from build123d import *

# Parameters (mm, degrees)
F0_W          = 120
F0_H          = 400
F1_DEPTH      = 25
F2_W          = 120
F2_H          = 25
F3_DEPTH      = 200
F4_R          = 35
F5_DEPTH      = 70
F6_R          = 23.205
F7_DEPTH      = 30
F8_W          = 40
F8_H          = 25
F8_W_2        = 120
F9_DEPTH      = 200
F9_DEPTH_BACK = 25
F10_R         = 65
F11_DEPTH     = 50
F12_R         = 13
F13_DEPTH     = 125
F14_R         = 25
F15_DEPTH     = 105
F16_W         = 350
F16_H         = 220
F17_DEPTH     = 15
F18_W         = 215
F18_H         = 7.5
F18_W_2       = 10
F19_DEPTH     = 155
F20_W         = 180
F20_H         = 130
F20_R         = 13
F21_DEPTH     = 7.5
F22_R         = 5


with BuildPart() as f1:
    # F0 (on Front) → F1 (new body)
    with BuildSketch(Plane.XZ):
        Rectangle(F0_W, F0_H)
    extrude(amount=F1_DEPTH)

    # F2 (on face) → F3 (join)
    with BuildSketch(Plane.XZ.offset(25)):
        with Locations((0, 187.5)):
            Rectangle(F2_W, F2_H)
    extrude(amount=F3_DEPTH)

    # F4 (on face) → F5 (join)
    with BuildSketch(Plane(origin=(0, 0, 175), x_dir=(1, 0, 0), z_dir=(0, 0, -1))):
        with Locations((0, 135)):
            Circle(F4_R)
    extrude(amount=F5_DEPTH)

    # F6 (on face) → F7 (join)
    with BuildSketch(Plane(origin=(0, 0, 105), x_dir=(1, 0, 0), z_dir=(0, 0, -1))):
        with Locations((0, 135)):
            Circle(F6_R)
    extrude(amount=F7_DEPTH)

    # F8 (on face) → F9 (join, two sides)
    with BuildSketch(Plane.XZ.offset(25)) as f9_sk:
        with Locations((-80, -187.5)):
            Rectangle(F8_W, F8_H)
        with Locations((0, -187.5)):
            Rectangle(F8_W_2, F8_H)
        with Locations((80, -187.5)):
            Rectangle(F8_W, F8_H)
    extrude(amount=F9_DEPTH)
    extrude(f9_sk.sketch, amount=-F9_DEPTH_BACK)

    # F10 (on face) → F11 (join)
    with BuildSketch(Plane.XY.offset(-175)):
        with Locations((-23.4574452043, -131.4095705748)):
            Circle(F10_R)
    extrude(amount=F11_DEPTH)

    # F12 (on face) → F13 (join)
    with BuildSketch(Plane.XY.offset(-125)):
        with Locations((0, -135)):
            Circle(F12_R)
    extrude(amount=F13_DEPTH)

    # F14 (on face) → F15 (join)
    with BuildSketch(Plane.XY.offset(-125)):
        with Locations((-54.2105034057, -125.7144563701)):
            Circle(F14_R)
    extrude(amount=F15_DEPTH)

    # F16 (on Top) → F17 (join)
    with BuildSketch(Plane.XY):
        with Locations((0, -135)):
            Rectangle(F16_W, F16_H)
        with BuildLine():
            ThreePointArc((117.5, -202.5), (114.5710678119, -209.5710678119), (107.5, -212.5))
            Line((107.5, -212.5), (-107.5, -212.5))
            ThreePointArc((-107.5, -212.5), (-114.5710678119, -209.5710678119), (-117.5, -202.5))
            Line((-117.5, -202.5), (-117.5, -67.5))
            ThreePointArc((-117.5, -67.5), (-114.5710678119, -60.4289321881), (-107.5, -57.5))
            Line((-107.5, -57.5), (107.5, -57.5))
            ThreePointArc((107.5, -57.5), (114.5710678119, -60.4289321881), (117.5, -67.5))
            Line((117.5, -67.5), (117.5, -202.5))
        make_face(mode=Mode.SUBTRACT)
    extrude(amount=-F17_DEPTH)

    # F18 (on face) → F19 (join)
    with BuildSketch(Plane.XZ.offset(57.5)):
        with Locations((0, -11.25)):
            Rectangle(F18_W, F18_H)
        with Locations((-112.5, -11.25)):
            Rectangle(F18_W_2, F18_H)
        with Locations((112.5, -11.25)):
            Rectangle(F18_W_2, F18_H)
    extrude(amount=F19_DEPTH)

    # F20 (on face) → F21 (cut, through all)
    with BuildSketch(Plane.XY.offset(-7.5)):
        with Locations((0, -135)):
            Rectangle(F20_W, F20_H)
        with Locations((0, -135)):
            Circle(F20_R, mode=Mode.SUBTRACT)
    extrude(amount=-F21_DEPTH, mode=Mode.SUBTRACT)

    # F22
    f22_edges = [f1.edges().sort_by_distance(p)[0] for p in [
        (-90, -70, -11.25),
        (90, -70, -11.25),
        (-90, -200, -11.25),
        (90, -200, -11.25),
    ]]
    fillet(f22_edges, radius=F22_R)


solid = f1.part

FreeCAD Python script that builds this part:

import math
import FreeCAD as App
import Part
import Sketcher
from FreeCAD import Vector
Q = App.Units.Quantity


def edges_at(feature, points):
    """Names of the edges that pass closest to the given points."""
    edges = feature.Shape.Edges
    near = lambda p: min(range(len(edges)), key=lambda i: edges[i].distToShape(Part.Vertex(*p))[0])
    return sorted({f"Edge{near(p) + 1}" for p in points})

doc = App.newDocument("Part")
params = doc.addObject("Spreadsheet::Sheet", "Params")
for row, (alias, value) in enumerate([
    ("sketch1_width", "120 mm"),
    ("sketch1_height", "400 mm"),
    ("pad1_length", "25 mm"),
    ("sketch2_width", "120 mm"),
    ("sketch2_height", "25 mm"),
    ("pad2_length", "200 mm"),
    ("sketch3_diameter", "70 mm"),
    ("pad3_length", "70 mm"),
    ("sketch4_diameter", "46.41 mm"),
    ("pad4_length", "30 mm"),
    ("sketch5_width", "200 mm"),
    ("sketch5_height", "25 mm"),
    ("pad5_length", "200 mm"),
    ("pad5_length2", "25 mm"),
    ("sketch6_diameter", "130 mm"),
    ("pad6_length", "50 mm"),
    ("sketch7_diameter", "26 mm"),
    ("pad7_length", "125 mm"),
    ("sketch8_diameter", "50 mm"),
    ("pad8_length", "105 mm"),
    ("sketch9_radius", "10 mm"),
    ("sketch9_width", "350 mm"),
    ("sketch9_width2", "215 mm"),
    ("sketch9_height", "220 mm"),
    ("sketch9_height2", "135 mm"),
    ("pad9_length", "15 mm"),
    ("sketch10_width", "235 mm"),
    ("sketch10_height", "7.5 mm"),
    ("pad10_length", "155 mm"),
    ("sketch11_diameter", "26 mm"),
    ("sketch11_width", "180 mm"),
    ("sketch11_height", "130 mm"),
    ("pocket1_length", "7.5 mm"),
    ("fillet_radius", "5 mm"),
], start=1):
    params.set(f"A{row}", alias)
    params.set(f"B{row}", "=" + value)
    params.setAlias(f"B{row}", alias)

body = doc.addObject("PartDesign::Body", "Body")

sketch1 = doc.addObject("Sketcher::SketchObject", "Sketch")
body.addObject(sketch1)
sketch1.AttachmentSupport = (doc.XZ_Plane, [""])
sketch1.MapMode = "FlatFace"
sketch1.addGeometry(Part.LineSegment(Vector(-60, 200, 0), Vector(-60, -200, 0)), False)
sketch1.addGeometry(Part.LineSegment(Vector(-60, -200, 0), Vector(60, -200, 0)), False)
sketch1.addGeometry(Part.LineSegment(Vector(60, -200, 0), Vector(60, 200, 0)), False)
sketch1.addGeometry(Part.LineSegment(Vector(60, 200, 0), Vector(-60, 200, 0)), False)
sketch1.addConstraint(Sketcher.Constraint("Coincident", 0, 2, 1, 1))
sketch1.addConstraint(Sketcher.Constraint("Coincident", 1, 2, 2, 1))
sketch1.addConstraint(Sketcher.Constraint("Coincident", 2, 2, 3, 1))
sketch1.addConstraint(Sketcher.Constraint("Coincident", 3, 2, 0, 1))
sketch1.addConstraint(Sketcher.Constraint("Vertical", 0))
sketch1.addConstraint(Sketcher.Constraint("Horizontal", 1))
sketch1.addConstraint(Sketcher.Constraint("Vertical", 2))
sketch1.addConstraint(Sketcher.Constraint("Horizontal", 3))
sketch1.addConstraint(Sketcher.Constraint("Symmetric", 0, 2, 2, 2, -1, 1))
sketch1.addConstraint(Sketcher.Constraint("DistanceX", 1, 1, 1, 2, Q("120 mm")))
sketch1.addConstraint(Sketcher.Constraint("DistanceY", 0, 2, 0, 1, Q("400 mm")))
sketch1.setExpression("Constraints[9]", "Params.sketch1_width")
sketch1.setExpression("Constraints[10]", "Params.sketch1_height")
pad1 = doc.addObject("PartDesign::Pad", "Pad")
body.addObject(pad1)
pad1.Profile = sketch1
pad1.setExpression("Length", "Params.pad1_length")

sketch2 = doc.addObject("Sketcher::SketchObject", "Sketch001")
body.addObject(sketch2)
sketch2.AttachmentSupport = (doc.XZ_Plane, [""])
sketch2.MapMode = "FlatFace"
sketch2.AttachmentOffset = App.Placement(Vector(0, 0, 25), App.Rotation())
sketch2.addGeometry(Part.LineSegment(Vector(-60, 200, 0), Vector(-60, 175, 0)), False)
sketch2.addGeometry(Part.LineSegment(Vector(-60, 175, 0), Vector(60, 175, 0)), False)
sketch2.addGeometry(Part.LineSegment(Vector(60, 175, 0), Vector(60, 200, 0)), False)
sketch2.addGeometry(Part.LineSegment(Vector(60, 200, 0), Vector(-60, 200, 0)), False)
sketch2.addConstraint(Sketcher.Constraint("Coincident", 0, 2, 1, 1))
sketch2.addConstraint(Sketcher.Constraint("Coincident", 1, 2, 2, 1))
sketch2.addConstraint(Sketcher.Constraint("Coincident", 2, 2, 3, 1))
sketch2.addConstraint(Sketcher.Constraint("Coincident", 3, 2, 0, 1))
sketch2.addConstraint(Sketcher.Constraint("Vertical", 0))
sketch2.addConstraint(Sketcher.Constraint("Horizontal", 1))
sketch2.addConstraint(Sketcher.Constraint("Vertical", 2))
sketch2.addConstraint(Sketcher.Constraint("Horizontal", 3))
sketch2.addConstraint(Sketcher.Constraint("DistanceX", 1, 1, 1, 2, Q("120 mm")))
sketch2.addConstraint(Sketcher.Constraint("DistanceY", 0, 2, 0, 1, Q("25 mm")))
sketch2.addConstraint(Sketcher.Constraint("DistanceX", 0, 2, -1, 1, Q("60 mm")))
sketch2.addConstraint(Sketcher.Constraint("DistanceY", -1, 1, 0, 2, Q("175 mm")))
sketch2.setExpression("Constraints[8]", "Params.sketch2_width")
sketch2.setExpression("Constraints[9]", "Params.sketch2_height")
pad2 = doc.addObject("PartDesign::Pad", "Pad001")
body.addObject(pad2)
pad2.Profile = sketch2
pad2.setExpression("Length", "Params.pad2_length")

sketch3 = doc.addObject("Sketcher::SketchObject", "Sketch002")
body.addObject(sketch3)
sketch3.AttachmentSupport = (doc.XY_Plane, [""])
sketch3.MapMode = "FlatFace"
sketch3.AttachmentOffset = App.Placement(Vector(0, 0, 175), App.Rotation())
sketch3.addGeometry(Part.Circle(Vector(0, -135, 0), Vector(0, 0, 1), 35), False)
sketch3.addConstraint(Sketcher.Constraint("PointOnObject", 0, 3, -2))
sketch3.addConstraint(Sketcher.Constraint("Diameter", 0, Q("70 mm")))
sketch3.addConstraint(Sketcher.Constraint("DistanceY", 0, 3, -1, 1, Q("135 mm")))
sketch3.setExpression("Constraints[1]", "Params.sketch3_diameter")
pad3 = doc.addObject("PartDesign::Pad", "Pad002")
body.addObject(pad3)
pad3.Profile = sketch3
pad3.setExpression("Length", "Params.pad3_length")
pad3.Reversed = True

sketch4 = doc.addObject("Sketcher::SketchObject", "Sketch003")
body.addObject(sketch4)
sketch4.AttachmentSupport = (doc.XY_Plane, [""])
sketch4.MapMode = "FlatFace"
sketch4.AttachmentOffset = App.Placement(Vector(0, 0, 105), App.Rotation())
sketch4.addGeometry(Part.Circle(Vector(0, -135, 0), Vector(0, 0, 1), 23), False)
sketch4.addConstraint(Sketcher.Constraint("PointOnObject", 0, 3, -2))
sketch4.addConstraint(Sketcher.Constraint("Diameter", 0, Q("46.41 mm")))
sketch4.addConstraint(Sketcher.Constraint("DistanceY", 0, 3, -1, 1, Q("135 mm")))
sketch4.setExpression("Constraints[1]", "Params.sketch4_diameter")
pad4 = doc.addObject("PartDesign::Pad", "Pad003")
body.addObject(pad4)
pad4.Profile = sketch4
pad4.setExpression("Length", "Params.pad4_length")
pad4.Reversed = True

sketch5 = doc.addObject("Sketcher::SketchObject", "Sketch004")
body.addObject(sketch5)
sketch5.AttachmentSupport = (doc.XZ_Plane, [""])
sketch5.MapMode = "FlatFace"
sketch5.AttachmentOffset = App.Placement(Vector(0, 0, 25), App.Rotation())
sketch5.addGeometry(Part.LineSegment(Vector(-100, -175, 0), Vector(-100, -200, 0)), False)
sketch5.addGeometry(Part.LineSegment(Vector(-100, -200, 0), Vector(100, -200, 0)), False)
sketch5.addGeometry(Part.LineSegment(Vector(100, -200, 0), Vector(100, -175, 0)), False)
sketch5.addGeometry(Part.LineSegment(Vector(100, -175, 0), Vector(-100, -175, 0)), False)
sketch5.addConstraint(Sketcher.Constraint("Coincident", 0, 2, 1, 1))
sketch5.addConstraint(Sketcher.Constraint("Coincident", 1, 2, 2, 1))
sketch5.addConstraint(Sketcher.Constraint("Coincident", 2, 2, 3, 1))
sketch5.addConstraint(Sketcher.Constraint("Coincident", 3, 2, 0, 1))
sketch5.addConstraint(Sketcher.Constraint("Vertical", 0))
sketch5.addConstraint(Sketcher.Constraint("Horizontal", 1))
sketch5.addConstraint(Sketcher.Constraint("Vertical", 2))
sketch5.addConstraint(Sketcher.Constraint("Horizontal", 3))
sketch5.addConstraint(Sketcher.Constraint("DistanceX", 1, 1, 1, 2, Q("200 mm")))
sketch5.addConstraint(Sketcher.Constraint("DistanceY", 0, 2, 0, 1, Q("25 mm")))
sketch5.addConstraint(Sketcher.Constraint("DistanceX", 0, 2, -1, 1, Q("100 mm")))
sketch5.addConstraint(Sketcher.Constraint("DistanceY", 0, 2, -1, 1, Q("200 mm")))
sketch5.setExpression("Constraints[8]", "Params.sketch5_width")
sketch5.setExpression("Constraints[9]", "Params.sketch5_height")
pad5 = doc.addObject("PartDesign::Pad", "Pad004")
body.addObject(pad5)
pad5.Profile = sketch5
pad5.Type = "TwoLengths"
pad5.setExpression("Length", "Params.pad5_length")
pad5.setExpression("Length2", "Params.pad5_length2")

sketch6 = doc.addObject("Sketcher::SketchObject", "Sketch005")
body.addObject(sketch6)
sketch6.AttachmentSupport = (doc.XY_Plane, [""])
sketch6.MapMode = "FlatFace"
sketch6.AttachmentOffset = App.Placement(Vector(0, 0, -175), App.Rotation())
sketch6.addGeometry(Part.Circle(Vector(-23, -131, 0), Vector(0, 0, 1), 65), False)
sketch6.addConstraint(Sketcher.Constraint("Diameter", 0, Q("130 mm")))
sketch6.addConstraint(Sketcher.Constraint("DistanceY", 0, 3, -1, 1, Q("131.409571 mm")))
sketch6.addConstraint(Sketcher.Constraint("DistanceX", 0, 3, -1, 1, Q("23.457445 mm")))
sketch6.setExpression("Constraints[0]", "Params.sketch6_diameter")
pad6 = doc.addObject("PartDesign::Pad", "Pad005")
body.addObject(pad6)
pad6.Profile = sketch6
pad6.setExpression("Length", "Params.pad6_length")

sketch7 = doc.addObject("Sketcher::SketchObject", "Sketch006")
body.addObject(sketch7)
sketch7.AttachmentSupport = (doc.XY_Plane, [""])
sketch7.MapMode = "FlatFace"
sketch7.AttachmentOffset = App.Placement(Vector(0, 0, -125), App.Rotation())
sketch7.addGeometry(Part.Circle(Vector(0, -135, 0), Vector(0, 0, 1), 13), False)
sketch7.addConstraint(Sketcher.Constraint("PointOnObject", 0, 3, -2))
sketch7.addConstraint(Sketcher.Constraint("Diameter", 0, Q("26 mm")))
sketch7.addConstraint(Sketcher.Constraint("DistanceY", 0, 3, -1, 1, Q("135 mm")))
sketch7.setExpression("Constraints[1]", "Params.sketch7_diameter")
pad7 = doc.addObject("PartDesign::Pad", "Pad006")
body.addObject(pad7)
pad7.Profile = sketch7
pad7.setExpression("Length", "Params.pad7_length")

sketch8 = doc.addObject("Sketcher::SketchObject", "Sketch007")
body.addObject(sketch8)
sketch8.AttachmentSupport = (doc.XY_Plane, [""])
sketch8.MapMode = "FlatFace"
sketch8.AttachmentOffset = App.Placement(Vector(0, 0, -125), App.Rotation())
sketch8.addGeometry(Part.Circle(Vector(-54, -126, 0), Vector(0, 0, 1), 25), False)
sketch8.addConstraint(Sketcher.Constraint("Diameter", 0, Q("50 mm")))
sketch8.addConstraint(Sketcher.Constraint("DistanceX", 0, 3, -1, 1, Q("54.210503 mm")))
sketch8.addConstraint(Sketcher.Constraint("DistanceY", 0, 3, -1, 1, Q("125.714456 mm")))
sketch8.setExpression("Constraints[0]", "Params.sketch8_diameter")
pad8 = doc.addObject("PartDesign::Pad", "Pad007")
body.addObject(pad8)
pad8.Profile = sketch8
pad8.setExpression("Length", "Params.pad8_length")

sketch9 = doc.addObject("Sketcher::SketchObject", "Sketch008")
body.addObject(sketch9)
sketch9.AttachmentSupport = (doc.XY_Plane, [""])
sketch9.MapMode = "FlatFace"
sketch9.addGeometry(Part.LineSegment(Vector(-175, -25, 0), Vector(-175, -245, 0)), False)
sketch9.addGeometry(Part.LineSegment(Vector(-175, -245, 0), Vector(175, -245, 0)), False)
sketch9.addGeometry(Part.LineSegment(Vector(175, -245, 0), Vector(175, -25, 0)), False)
sketch9.addGeometry(Part.LineSegment(Vector(175, -25, 0), Vector(-175, -25, 0)), False)
sketch9.addGeometry(Part.LineSegment(Vector(118, -68, 0), Vector(118, -202, 0)), False)
sketch9.addGeometry(Part.ArcOfCircle(Part.Circle(Vector(108, -202, 0), Vector(0, 0, 1), 10), math.radians(-90), math.radians(0)), False)
sketch9.addGeometry(Part.LineSegment(Vector(108, -212, 0), Vector(-108, -212, 0)), False)
sketch9.addGeometry(Part.ArcOfCircle(Part.Circle(Vector(-108, -202, 0), Vector(0, 0, 1), 10), math.radians(180), math.radians(270)), False)
sketch9.addGeometry(Part.LineSegment(Vector(-118, -202, 0), Vector(-118, -68, 0)), False)
sketch9.addGeometry(Part.ArcOfCircle(Part.Circle(Vector(-108, -68, 0), Vector(0, 0, 1), 10), math.radians(90), math.radians(180)), False)
sketch9.addGeometry(Part.LineSegment(Vector(-108, -58, 0), Vector(108, -58, 0)), False)
sketch9.addGeometry(Part.ArcOfCircle(Part.Circle(Vector(108, -68, 0), Vector(0, 0, 1), 10), math.radians(0), math.radians(90)), False)
sketch9.addConstraint(Sketcher.Constraint("Coincident", 0, 2, 1, 1))
sketch9.addConstraint(Sketcher.Constraint("Coincident", 1, 2, 2, 1))
sketch9.addConstraint(Sketcher.Constraint("Coincident", 2, 2, 3, 1))
sketch9.addConstraint(Sketcher.Constraint("Coincident", 3, 2, 0, 1))
sketch9.addConstraint(Sketcher.Constraint("Tangent", 4, 2, 5, 2))
sketch9.addConstraint(Sketcher.Constraint("Tangent", 5, 1, 6, 1))
sketch9.addConstraint(Sketcher.Constraint("Tangent", 6, 2, 7, 2))
sketch9.addConstraint(Sketcher.Constraint("Tangent", 7, 1, 8, 1))
sketch9.addConstraint(Sketcher.Constraint("Tangent", 8, 2, 9, 2))
sketch9.addConstraint(Sketcher.Constraint("Tangent", 9, 1, 10, 1))
sketch9.addConstraint(Sketcher.Constraint("Tangent", 10, 2, 11, 2))
sketch9.addConstraint(Sketcher.Constraint("Tangent", 11, 1, 4, 1))
sketch9.addConstraint(Sketcher.Constraint("Vertical", 0))
sketch9.addConstraint(Sketcher.Constraint("Horizontal", 1))
sketch9.addConstraint(Sketcher.Constraint("Vertical", 2))
sketch9.addConstraint(Sketcher.Constraint("Horizontal", 3))
sketch9.addConstraint(Sketcher.Constraint("Vertical", 4))
sketch9.addConstraint(Sketcher.Constraint("Horizontal", 6))
sketch9.addConstraint(Sketcher.Constraint("Vertical", 8))
sketch9.addConstraint(Sketcher.Constraint("Horizontal", 10))
sketch9.addConstraint(Sketcher.Constraint("Equal", 5, 7))
sketch9.addConstraint(Sketcher.Constraint("Equal", 7, 9))
sketch9.addConstraint(Sketcher.Constraint("Equal", 9, 11))
sketch9.addConstraint(Sketcher.Constraint("Radius", 5, Q("10 mm")))
sketch9.addConstraint(Sketcher.Constraint("DistanceX", 1, 1, 1, 2, Q("350 mm")))
sketch9.addConstraint(Sketcher.Constraint("DistanceX", 6, 2, 6, 1, Q("215 mm")))
sketch9.addConstraint(Sketcher.Constraint("DistanceY", 0, 2, 0, 1, Q("220 mm")))
sketch9.addConstraint(Sketcher.Constraint("DistanceY", 4, 2, 4, 1, Q("135 mm")))
sketch9.addConstraint(Sketcher.Constraint("DistanceX", 0, 2, -1, 1, Q("175 mm")))
sketch9.addConstraint(Sketcher.Constraint("DistanceY", 0, 2, -1, 1, Q("245 mm")))
sketch9.addConstraint(Sketcher.Constraint("DistanceX", -1, 1, 5, 3, Q("107.5 mm")))
sketch9.addConstraint(Sketcher.Constraint("DistanceY", 5, 3, -1, 1, Q("202.5 mm")))
sketch9.setExpression("Constraints[23]", "Params.sketch9_radius")
sketch9.setExpression("Constraints[24]", "Params.sketch9_width")
sketch9.setExpression("Constraints[25]", "Params.sketch9_width2")
sketch9.setExpression("Constraints[26]", "Params.sketch9_height")
sketch9.setExpression("Constraints[27]", "Params.sketch9_height2")
pad9 = doc.addObject("PartDesign::Pad", "Pad008")
body.addObject(pad9)
pad9.Profile = sketch9
pad9.setExpression("Length", "Params.pad9_length")
pad9.Reversed = True

sketch10 = doc.addObject("Sketcher::SketchObject", "Sketch009")
body.addObject(sketch10)
sketch10.AttachmentSupport = (doc.XZ_Plane, [""])
sketch10.MapMode = "FlatFace"
sketch10.AttachmentOffset = App.Placement(Vector(0, 0, 57.5), App.Rotation())
sketch10.addGeometry(Part.LineSegment(Vector(-118, -8, 0), Vector(-118, -15, 0)), False)
sketch10.addGeometry(Part.LineSegment(Vector(-118, -15, 0), Vector(118, -15, 0)), False)
sketch10.addGeometry(Part.LineSegment(Vector(118, -15, 0), Vector(118, -8, 0)), False)
sketch10.addGeometry(Part.LineSegment(Vector(118, -8, 0), Vector(-118, -8, 0)), False)
sketch10.addConstraint(Sketcher.Constraint("Coincident", 0, 2, 1, 1))
sketch10.addConstraint(Sketcher.Constraint("Coincident", 1, 2, 2, 1))
sketch10.addConstraint(Sketcher.Constraint("Coincident", 2, 2, 3, 1))
sketch10.addConstraint(Sketcher.Constraint("Coincident", 3, 2, 0, 1))
sketch10.addConstraint(Sketcher.Constraint("Vertical", 0))
sketch10.addConstraint(Sketcher.Constraint("Horizontal", 1))
sketch10.addConstraint(Sketcher.Constraint("Vertical", 2))
sketch10.addConstraint(Sketcher.Constraint("Horizontal", 3))
sketch10.addConstraint(Sketcher.Constraint("DistanceX", 1, 1, 1, 2, Q("235 mm")))
sketch10.addConstraint(Sketcher.Constraint("DistanceY", 0, 2, 0, 1, Q("7.5 mm")))
sketch10.addConstraint(Sketcher.Constraint("DistanceY", 0, 2, -1, 1, Q("15 mm")))
sketch10.addConstraint(Sketcher.Constraint("DistanceX", 0, 2, -1, 1, Q("117.5 mm")))
sketch10.setExpression("Constraints[8]", "Params.sketch10_width")
sketch10.setExpression("Constraints[9]", "Params.sketch10_height")
pad10 = doc.addObject("PartDesign::Pad", "Pad009")
body.addObject(pad10)
pad10.Profile = sketch10
pad10.setExpression("Length", "Params.pad10_length")

sketch11 = doc.addObject("Sketcher::SketchObject", "Sketch010")
body.addObject(sketch11)
sketch11.AttachmentSupport = (doc.XY_Plane, [""])
sketch11.MapMode = "FlatFace"
sketch11.AttachmentOffset = App.Placement(Vector(0, 0, -7.5), App.Rotation())
sketch11.addGeometry(Part.LineSegment(Vector(-90, -70, 0), Vector(-90, -200, 0)), False)
sketch11.addGeometry(Part.LineSegment(Vector(-90, -200, 0), Vector(90, -200, 0)), False)
sketch11.addGeometry(Part.LineSegment(Vector(90, -200, 0), Vector(90, -70, 0)), False)
sketch11.addGeometry(Part.LineSegment(Vector(90, -70, 0), Vector(-90, -70, 0)), False)
sketch11.addGeometry(Part.Circle(Vector(0, -135, 0), Vector(0, 0, 1), 13), False)
sketch11.addConstraint(Sketcher.Constraint("Coincident", 0, 2, 1, 1))
sketch11.addConstraint(Sketcher.Constraint("Coincident", 1, 2, 2, 1))
sketch11.addConstraint(Sketcher.Constraint("Coincident", 2, 2, 3, 1))
sketch11.addConstraint(Sketcher.Constraint("Coincident", 3, 2, 0, 1))
sketch11.addConstraint(Sketcher.Constraint("Vertical", 0))
sketch11.addConstraint(Sketcher.Constraint("Horizontal", 1))
sketch11.addConstraint(Sketcher.Constraint("Vertical", 2))
sketch11.addConstraint(Sketcher.Constraint("Horizontal", 3))
sketch11.addConstraint(Sketcher.Constraint("PointOnObject", 4, 3, -2))
sketch11.addConstraint(Sketcher.Constraint("Diameter", 4, Q("26 mm")))
sketch11.addConstraint(Sketcher.Constraint("DistanceX", 1, 1, 1, 2, Q("180 mm")))
sketch11.addConstraint(Sketcher.Constraint("DistanceY", 0, 2, 0, 1, Q("130 mm")))
sketch11.addConstraint(Sketcher.Constraint("DistanceY", 4, 3, -1, 1, Q("135 mm")))
sketch11.addConstraint(Sketcher.Constraint("DistanceX", 0, 2, -1, 1, Q("90 mm")))
sketch11.addConstraint(Sketcher.Constraint("DistanceY", 0, 2, -1, 1, Q("200 mm")))
sketch11.setExpression("Constraints[9]", "Params.sketch11_diameter")
sketch11.setExpression("Constraints[10]", "Params.sketch11_width")
sketch11.setExpression("Constraints[11]", "Params.sketch11_height")
pocket1 = doc.addObject("PartDesign::Pocket", "Pocket")
body.addObject(pocket1)
pocket1.Profile = sketch11
pocket1.setExpression("Length", "Params.pocket1_length")
doc.recompute()

fillet = doc.addObject("PartDesign::Fillet", "Fillet")
body.addObject(fillet)
fillet.Base = (pocket1, edges_at(pocket1, [
    (-90, -70, -11.25),
    (90, -70, -11.25),
    (-90, -200, -11.25),
    (90, -200, -11.25),
]))
fillet.setExpression("Radius", "Params.fillet_radius")

doc.recompute()
